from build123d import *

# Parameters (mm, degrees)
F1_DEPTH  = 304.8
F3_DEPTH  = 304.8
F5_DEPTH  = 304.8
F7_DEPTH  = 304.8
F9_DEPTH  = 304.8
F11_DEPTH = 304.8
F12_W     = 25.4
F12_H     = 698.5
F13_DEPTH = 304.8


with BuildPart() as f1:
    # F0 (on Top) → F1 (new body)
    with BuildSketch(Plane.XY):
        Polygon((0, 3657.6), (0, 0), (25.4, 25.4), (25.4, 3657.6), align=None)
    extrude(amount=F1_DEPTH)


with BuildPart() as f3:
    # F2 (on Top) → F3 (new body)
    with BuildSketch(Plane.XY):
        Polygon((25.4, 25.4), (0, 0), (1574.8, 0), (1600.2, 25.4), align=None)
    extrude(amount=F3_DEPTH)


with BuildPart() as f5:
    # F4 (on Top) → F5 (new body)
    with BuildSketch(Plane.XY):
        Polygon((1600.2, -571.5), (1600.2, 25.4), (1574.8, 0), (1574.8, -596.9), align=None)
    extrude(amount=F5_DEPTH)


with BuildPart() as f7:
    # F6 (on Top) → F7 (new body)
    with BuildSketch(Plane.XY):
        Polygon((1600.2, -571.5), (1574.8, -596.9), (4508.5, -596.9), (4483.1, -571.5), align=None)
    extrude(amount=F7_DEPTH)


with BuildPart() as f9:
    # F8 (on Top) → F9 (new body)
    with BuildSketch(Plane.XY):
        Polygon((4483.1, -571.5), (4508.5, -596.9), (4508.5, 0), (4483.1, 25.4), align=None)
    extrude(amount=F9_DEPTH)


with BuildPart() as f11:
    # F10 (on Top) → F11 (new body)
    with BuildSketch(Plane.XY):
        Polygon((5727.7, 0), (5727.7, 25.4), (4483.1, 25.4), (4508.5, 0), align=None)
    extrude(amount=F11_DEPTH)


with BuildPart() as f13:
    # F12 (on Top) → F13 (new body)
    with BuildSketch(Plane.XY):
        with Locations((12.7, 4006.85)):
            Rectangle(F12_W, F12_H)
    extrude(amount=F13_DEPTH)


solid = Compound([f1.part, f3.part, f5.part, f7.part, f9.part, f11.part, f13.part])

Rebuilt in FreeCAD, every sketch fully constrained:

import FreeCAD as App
import Part
import Sketcher

V = App.Vector
Q = App.Units.Quantity

doc = App.newDocument("Part")
body = doc.addObject("PartDesign::Body", "Body")

sketch1 = doc.addObject("Sketcher::SketchObject", "Sketch")
body.addObject(sketch1)
sketch1.AttachmentSupport = (doc.XY_Plane, [""])
sketch1.MapMode = "FlatFace"
sketch1.addGeometry([
    Part.LineSegment(V(0, 3657.6, 0), V(0, 0, 0)),
    Part.LineSegment(V(0, 0, 0), V(25.4, 25.4, 0)),
    Part.LineSegment(V(25.4, 25.4, 0), V(25.4, 3657.6, 0)),
    Part.LineSegment(V(25.4, 3657.6, 0), V(0, 3657.6, 0)),
], False)
sketch1.addConstraint([
    Sketcher.Constraint("Coincident", 0, 2, 1, 1),
    Sketcher.Constraint("Coincident", 1, 2, 2, 1),
    Sketcher.Constraint("Coincident", 2, 2, 3, 1),
    Sketcher.Constraint("Coincident", 3, 2, 0, 1),
    Sketcher.Constraint("Vertical", 0),
    Sketcher.Constraint("Vertical", 2),
    Sketcher.Constraint("Horizontal", 3),
    Sketcher.Constraint("Coincident", 0, 2, -1, 1),
    Sketcher.Constraint("DistanceX", 3, 2, 3, 1, Q("1 in")),
    Sketcher.Constraint("DistanceY", 0, 2, 0, 1, Q("144 in")),
    Sketcher.Constraint("DistanceY", 2, 1, 2, 2, Q("143 in")),
])
pad1 = doc.addObject("PartDesign::Pad", "Pad")
body.addObject(pad1)
pad1.Profile = sketch1
pad1.Length = Q("12 in")
body2 = doc.addObject("PartDesign::Body", "Body001")

sketch2 = doc.addObject("Sketcher::SketchObject", "Sketch001")
body2.addObject(sketch2)
sketch2.AttachmentSupport = (doc.getObject("XY_Plane001"), [""])
sketch2.MapMode = "FlatFace"
sketch2.addGeometry([
    Part.LineSegment(V(25.4, 25.4, 0), V(0, 0, 0)),
    Part.LineSegment(V(0, 0, 0), V(1574.8, 0, 0)),
    Part.LineSegment(V(1574.8, 0, 0), V(1600.2, 25.4, 0)),
    Part.LineSegment(V(1600.2, 25.4, 0), V(25.4, 25.4, 0)),
], False)
sketch2.addConstraint([
    Sketcher.Constraint("Coincident", 0, 2, 1, 1),
    Sketcher.Constraint("Coincident", 1, 2, 2, 1),
    Sketcher.Constraint("Coincident", 2, 2, 3, 1),
    Sketcher.Constraint("Coincident", 3, 2, 0, 1),
    Sketcher.Constraint("Horizontal", 1),
    Sketcher.Constraint("Horizontal", 3),
    Sketcher.Constraint("Coincident", 0, 2, -1, 1),
    Sketcher.Constraint("Parallel", 0, 2),
    Sketcher.Constraint("DistanceX", 1, 1, 1, 2, Q("62 in")),
    Sketcher.Constraint("DistanceX", -1, 1, 2, 2, Q("63 in")),
    Sketcher.Constraint("DistanceY", -1, 1, 2, 2, Q("1 in")),
])
pad2 = doc.addObject("PartDesign::Pad", "Pad001")
body2.addObject(pad2)
pad2.Profile = sketch2
pad2.Length = Q("12 in")
body3 = doc.addObject("PartDesign::Body", "Body002")

sketch3 = doc.addObject("Sketcher::SketchObject", "Sketch002")
body3.addObject(sketch3)
sketch3.AttachmentSupport = (doc.getObject("XY_Plane002"), [""])
sketch3.MapMode = "FlatFace"
sketch3.addGeometry([
    Part.LineSegment(V(1600.2, -571.5, 0), V(1600.2, 25.4, 0)),
    Part.LineSegment(V(1600.2, 25.4, 0), V(1574.8, 0, 0)),
    Part.LineSegment(V(1574.8, 0, 0), V(1574.8, -596.9, 0)),
    Part.LineSegment(V(1574.8, -596.9, 0), V(1600.2, -571.5, 0)),
], False)
sketch3.addConstraint([
    Sketcher.Constraint("Coincident", 0, 2, 1, 1),
    Sketcher.Constraint("Coincident", 1, 2, 2, 1),
    Sketcher.Constraint("Coincident", 2, 2, 3, 1),
    Sketcher.Constraint("Coincident", 3, 2, 0, 1),
    Sketcher.Constraint("Vertical", 0),
    Sketcher.Constraint("Vertical", 2),
    Sketcher.Constraint("PointOnObject", 1, 2, -1),
    Sketcher.Constraint("Parallel", 1, 3),
    Sketcher.Constraint("DistanceY", 0, 1, 0, 2, Q("23.5 in")),
    Sketcher.Constraint("DistanceX", -1, 1, 0, 2, Q("63 in")),
    Sketcher.Constraint("DistanceY", -1, 1, 0, 2, Q("1 in")),
    Sketcher.Constraint("DistanceX", -1, 1, 1, 2, Q("62 in")),
])
pad3 = doc.addObject("PartDesign::Pad", "Pad002")
body3.addObject(pad3)
pad3.Profile = sketch3
pad3.Length = Q("12 in")
body4 = doc.addObject("PartDesign::Body", "Body003")

sketch4 = doc.addObject("Sketcher::SketchObject", "Sketch003")
body4.addObject(sketch4)
sketch4.AttachmentSupport = (doc.getObject("XY_Plane003"), [""])
sketch4.MapMode = "FlatFace"
sketch4.addGeometry([
    Part.LineSegment(V(1600.2, -571.5, 0), V(1574.8, -596.9, 0)),
    Part.LineSegment(V(1574.8, -596.9, 0), V(4508.5, -596.9, 0)),
    Part.LineSegment(V(4508.5, -596.9, 0), V(4483.1, -571.5, 0)),
    Part.LineSegment(V(4483.1, -571.5, 0), V(1600.2, -571.5, 0)),
], False)
sketch4.addConstraint([
    Sketcher.Constraint("Coincident", 0, 2, 1, 1),
    Sketcher.Constraint("Coincident", 1, 2, 2, 1),
    Sketcher.Constraint("Coincident", 2, 2, 3, 1),
    Sketcher.Constraint("Coincident", 3, 2, 0, 1),
    Sketcher.Constraint("Horizontal", 1),
    Sketcher.Constraint("Horizontal", 3),
    Sketcher.Constraint("Perpendicular", 0, 2),
    Sketcher.Constraint("Equal", 0, 2),
    Sketcher.Constraint("DistanceX", 1, 1, 1, 2, Q("115.5 in")),
    Sketcher.Constraint("DistanceX", 3, 2, 3, 1, Q("113.5 in")),
    Sketcher.Constraint("DistanceX", -1, 1, 0, 2, Q("62 in")),
    Sketcher.Constraint("DistanceY", 0, 2, -1, 1, Q("23.5 in")),
])
pad4 = doc.addObject("PartDesign::Pad", "Pad003")
body4.addObject(pad4)
pad4.Profile = sketch4
pad4.Length = Q("12 in")
body5 = doc.addObject("PartDesign::Body", "Body004")

sketch5 = doc.addObject("Sketcher::SketchObject", "Sketch004")
body5.addObject(sketch5)
sketch5.AttachmentSupport = (doc.getObject("XY_Plane004"), [""])
sketch5.MapMode = "FlatFace"
sketch5.addGeometry([
    Part.LineSegment(V(4483.1, -571.5, 0), V(4508.5, -596.9, 0)),
    Part.LineSegment(V(4508.5, -596.9, 0), V(4508.5, 0, 0)),
    Part.LineSegment(V(4508.5, 0, 0), V(4483.1, 25.4, 0)),
    Part.LineSegment(V(4483.1, 25.4, 0), V(4483.1, -571.5, 0)),
], False)
sketch5.addConstraint([
    Sketcher.Constraint("Coincident", 0, 2, 1, 1),
    Sketcher.Constraint("Coincident", 1, 2, 2, 1),
    Sketcher.Constraint("Coincident", 2, 2, 3, 1),
    Sketcher.Constraint("Coincident", 3, 2, 0, 1),
    Sketcher.Constraint("Vertical", 1),
    Sketcher.Constraint("Vertical", 3),
    Sketcher.Constraint("PointOnObject", 1, 2, -1),
    Sketcher.Constraint("Parallel", 0, 2),
    Sketcher.Constraint("DistanceY", 1, 1, 1, 2, Q("23.5 in")),
    Sketcher.Constraint("DistanceY", -1, 1, 2, 2, Q("1 in")),
    Sketcher.Constraint("Angle", 0, Q("-45 deg")),
    Sketcher.Constraint("DistanceX", -1, 1, 0, 2, Q("177.5 in")),
])
pad5 = doc.addObject("PartDesign::Pad", "Pad004")
body5.addObject(pad5)
pad5.Profile = sketch5
pad5.Length = Q("12 in")
body6 = doc.addObject("PartDesign::Body", "Body005")

sketch6 = doc.addObject("Sketcher::SketchObject", "Sketch005")
body6.addObject(sketch6)
sketch6.AttachmentSupport = (doc.getObject("XY_Plane005"), [""])
sketch6.MapMode = "FlatFace"
sketch6.addGeometry([
    Part.LineSegment(V(5727.7, 0, 0), V(5727.7, 25.4, 0)),
    Part.LineSegment(V(5727.7, 25.4, 0), V(4483.1, 25.4, 0)),
    Part.LineSegment(V(4483.1, 25.4, 0), V(4508.5, 0, 0)),
    Part.LineSegment(V(4508.5, 0, 0), V(5727.7, 0, 0)),
], False)
sketch6.addConstraint([
    Sketcher.Constraint("Coincident", 0, 2, 1, 1),
    Sketcher.Constraint("Coincident", 1, 2, 2, 1),
    Sketcher.Constraint("Coincident", 2, 2, 3, 1),
    Sketcher.Constraint("Coincident", 3, 2, 0, 1),
    Sketcher.Constraint("Vertical", 0),
    Sketcher.Constraint("Horizontal", 1),
    Sketcher.Constraint("Horizontal", 3),
    Sketcher.Constraint("PointOnObject", 2, 2, -1),
    Sketcher.Constraint("DistanceX", 1, 2, 1, 1, Q("49 in")),
    Sketcher.Constraint("DistanceX", 3, 1, 3, 2, Q("48 in")),
    Sketcher.Constraint("DistanceY", 0, 1, 0, 2, Q("1 in")),
    Sketcher.Constraint("DistanceX", -1, 1, 0, 2, Q("225.5 in")),
])
pad6 = doc.addObject("PartDesign::Pad", "Pad005")
body6.addObject(pad6)
pad6.Profile = sketch6
pad6.Length = Q("12 in")
body7 = doc.addObject("PartDesign::Body", "Body006")

sketch7 = doc.addObject("Sketcher::SketchObject", "Sketch006")
body7.addObject(sketch7)
sketch7.AttachmentSupport = (doc.getObject("XY_Plane006"), [""])
sketch7.MapMode = "FlatFace"
sketch7.addGeometry([
    Part.LineSegment(V(0, 4356.1, 0), V(0, 3657.6, 0)),
    Part.LineSegment(V(0, 3657.6, 0), V(25.4, 3657.6, 0)),
    Part.LineSegment(V(25.4, 3657.6, 0), V(25.4, 4356.1, 0)),
    Part.LineSegment(V(25.4, 4356.1, 0), V(0, 4356.1, 0)),
], False)
sketch7.addConstraint([
    Sketcher.Constraint("Coincident", 0, 2, 1, 1),
    Sketcher.Constraint("Coincident", 1, 2, 2, 1),
    Sketcher.Constraint("Coincident", 2, 2, 3, 1),
    Sketcher.Constraint("Coincident", 3, 2, 0, 1),
    Sketcher.Constraint("Vertical", 0),
    Sketcher.Constraint("Horizontal", 1),
    Sketcher.Constraint("Vertical", 2),
    Sketcher.Constraint("Horizontal", 3),
    Sketcher.Constraint("PointOnObject", 0, 2, -2),
    Sketcher.Constraint("DistanceX", 1, 1, 1, 2, Q("1 in")),
    Sketcher.Constraint("DistanceY", 0, 2, 0, 1, Q("27.5 in")),
    Sketcher.Constraint("DistanceY", -1, 1, 0, 2, Q("144 in")),
])
pad7 = doc.addObject("PartDesign::Pad", "Pad006")
body7.addObject(pad7)
pad7.Profile = sketch7
pad7.Length = Q("12 in")

doc.recompute()
